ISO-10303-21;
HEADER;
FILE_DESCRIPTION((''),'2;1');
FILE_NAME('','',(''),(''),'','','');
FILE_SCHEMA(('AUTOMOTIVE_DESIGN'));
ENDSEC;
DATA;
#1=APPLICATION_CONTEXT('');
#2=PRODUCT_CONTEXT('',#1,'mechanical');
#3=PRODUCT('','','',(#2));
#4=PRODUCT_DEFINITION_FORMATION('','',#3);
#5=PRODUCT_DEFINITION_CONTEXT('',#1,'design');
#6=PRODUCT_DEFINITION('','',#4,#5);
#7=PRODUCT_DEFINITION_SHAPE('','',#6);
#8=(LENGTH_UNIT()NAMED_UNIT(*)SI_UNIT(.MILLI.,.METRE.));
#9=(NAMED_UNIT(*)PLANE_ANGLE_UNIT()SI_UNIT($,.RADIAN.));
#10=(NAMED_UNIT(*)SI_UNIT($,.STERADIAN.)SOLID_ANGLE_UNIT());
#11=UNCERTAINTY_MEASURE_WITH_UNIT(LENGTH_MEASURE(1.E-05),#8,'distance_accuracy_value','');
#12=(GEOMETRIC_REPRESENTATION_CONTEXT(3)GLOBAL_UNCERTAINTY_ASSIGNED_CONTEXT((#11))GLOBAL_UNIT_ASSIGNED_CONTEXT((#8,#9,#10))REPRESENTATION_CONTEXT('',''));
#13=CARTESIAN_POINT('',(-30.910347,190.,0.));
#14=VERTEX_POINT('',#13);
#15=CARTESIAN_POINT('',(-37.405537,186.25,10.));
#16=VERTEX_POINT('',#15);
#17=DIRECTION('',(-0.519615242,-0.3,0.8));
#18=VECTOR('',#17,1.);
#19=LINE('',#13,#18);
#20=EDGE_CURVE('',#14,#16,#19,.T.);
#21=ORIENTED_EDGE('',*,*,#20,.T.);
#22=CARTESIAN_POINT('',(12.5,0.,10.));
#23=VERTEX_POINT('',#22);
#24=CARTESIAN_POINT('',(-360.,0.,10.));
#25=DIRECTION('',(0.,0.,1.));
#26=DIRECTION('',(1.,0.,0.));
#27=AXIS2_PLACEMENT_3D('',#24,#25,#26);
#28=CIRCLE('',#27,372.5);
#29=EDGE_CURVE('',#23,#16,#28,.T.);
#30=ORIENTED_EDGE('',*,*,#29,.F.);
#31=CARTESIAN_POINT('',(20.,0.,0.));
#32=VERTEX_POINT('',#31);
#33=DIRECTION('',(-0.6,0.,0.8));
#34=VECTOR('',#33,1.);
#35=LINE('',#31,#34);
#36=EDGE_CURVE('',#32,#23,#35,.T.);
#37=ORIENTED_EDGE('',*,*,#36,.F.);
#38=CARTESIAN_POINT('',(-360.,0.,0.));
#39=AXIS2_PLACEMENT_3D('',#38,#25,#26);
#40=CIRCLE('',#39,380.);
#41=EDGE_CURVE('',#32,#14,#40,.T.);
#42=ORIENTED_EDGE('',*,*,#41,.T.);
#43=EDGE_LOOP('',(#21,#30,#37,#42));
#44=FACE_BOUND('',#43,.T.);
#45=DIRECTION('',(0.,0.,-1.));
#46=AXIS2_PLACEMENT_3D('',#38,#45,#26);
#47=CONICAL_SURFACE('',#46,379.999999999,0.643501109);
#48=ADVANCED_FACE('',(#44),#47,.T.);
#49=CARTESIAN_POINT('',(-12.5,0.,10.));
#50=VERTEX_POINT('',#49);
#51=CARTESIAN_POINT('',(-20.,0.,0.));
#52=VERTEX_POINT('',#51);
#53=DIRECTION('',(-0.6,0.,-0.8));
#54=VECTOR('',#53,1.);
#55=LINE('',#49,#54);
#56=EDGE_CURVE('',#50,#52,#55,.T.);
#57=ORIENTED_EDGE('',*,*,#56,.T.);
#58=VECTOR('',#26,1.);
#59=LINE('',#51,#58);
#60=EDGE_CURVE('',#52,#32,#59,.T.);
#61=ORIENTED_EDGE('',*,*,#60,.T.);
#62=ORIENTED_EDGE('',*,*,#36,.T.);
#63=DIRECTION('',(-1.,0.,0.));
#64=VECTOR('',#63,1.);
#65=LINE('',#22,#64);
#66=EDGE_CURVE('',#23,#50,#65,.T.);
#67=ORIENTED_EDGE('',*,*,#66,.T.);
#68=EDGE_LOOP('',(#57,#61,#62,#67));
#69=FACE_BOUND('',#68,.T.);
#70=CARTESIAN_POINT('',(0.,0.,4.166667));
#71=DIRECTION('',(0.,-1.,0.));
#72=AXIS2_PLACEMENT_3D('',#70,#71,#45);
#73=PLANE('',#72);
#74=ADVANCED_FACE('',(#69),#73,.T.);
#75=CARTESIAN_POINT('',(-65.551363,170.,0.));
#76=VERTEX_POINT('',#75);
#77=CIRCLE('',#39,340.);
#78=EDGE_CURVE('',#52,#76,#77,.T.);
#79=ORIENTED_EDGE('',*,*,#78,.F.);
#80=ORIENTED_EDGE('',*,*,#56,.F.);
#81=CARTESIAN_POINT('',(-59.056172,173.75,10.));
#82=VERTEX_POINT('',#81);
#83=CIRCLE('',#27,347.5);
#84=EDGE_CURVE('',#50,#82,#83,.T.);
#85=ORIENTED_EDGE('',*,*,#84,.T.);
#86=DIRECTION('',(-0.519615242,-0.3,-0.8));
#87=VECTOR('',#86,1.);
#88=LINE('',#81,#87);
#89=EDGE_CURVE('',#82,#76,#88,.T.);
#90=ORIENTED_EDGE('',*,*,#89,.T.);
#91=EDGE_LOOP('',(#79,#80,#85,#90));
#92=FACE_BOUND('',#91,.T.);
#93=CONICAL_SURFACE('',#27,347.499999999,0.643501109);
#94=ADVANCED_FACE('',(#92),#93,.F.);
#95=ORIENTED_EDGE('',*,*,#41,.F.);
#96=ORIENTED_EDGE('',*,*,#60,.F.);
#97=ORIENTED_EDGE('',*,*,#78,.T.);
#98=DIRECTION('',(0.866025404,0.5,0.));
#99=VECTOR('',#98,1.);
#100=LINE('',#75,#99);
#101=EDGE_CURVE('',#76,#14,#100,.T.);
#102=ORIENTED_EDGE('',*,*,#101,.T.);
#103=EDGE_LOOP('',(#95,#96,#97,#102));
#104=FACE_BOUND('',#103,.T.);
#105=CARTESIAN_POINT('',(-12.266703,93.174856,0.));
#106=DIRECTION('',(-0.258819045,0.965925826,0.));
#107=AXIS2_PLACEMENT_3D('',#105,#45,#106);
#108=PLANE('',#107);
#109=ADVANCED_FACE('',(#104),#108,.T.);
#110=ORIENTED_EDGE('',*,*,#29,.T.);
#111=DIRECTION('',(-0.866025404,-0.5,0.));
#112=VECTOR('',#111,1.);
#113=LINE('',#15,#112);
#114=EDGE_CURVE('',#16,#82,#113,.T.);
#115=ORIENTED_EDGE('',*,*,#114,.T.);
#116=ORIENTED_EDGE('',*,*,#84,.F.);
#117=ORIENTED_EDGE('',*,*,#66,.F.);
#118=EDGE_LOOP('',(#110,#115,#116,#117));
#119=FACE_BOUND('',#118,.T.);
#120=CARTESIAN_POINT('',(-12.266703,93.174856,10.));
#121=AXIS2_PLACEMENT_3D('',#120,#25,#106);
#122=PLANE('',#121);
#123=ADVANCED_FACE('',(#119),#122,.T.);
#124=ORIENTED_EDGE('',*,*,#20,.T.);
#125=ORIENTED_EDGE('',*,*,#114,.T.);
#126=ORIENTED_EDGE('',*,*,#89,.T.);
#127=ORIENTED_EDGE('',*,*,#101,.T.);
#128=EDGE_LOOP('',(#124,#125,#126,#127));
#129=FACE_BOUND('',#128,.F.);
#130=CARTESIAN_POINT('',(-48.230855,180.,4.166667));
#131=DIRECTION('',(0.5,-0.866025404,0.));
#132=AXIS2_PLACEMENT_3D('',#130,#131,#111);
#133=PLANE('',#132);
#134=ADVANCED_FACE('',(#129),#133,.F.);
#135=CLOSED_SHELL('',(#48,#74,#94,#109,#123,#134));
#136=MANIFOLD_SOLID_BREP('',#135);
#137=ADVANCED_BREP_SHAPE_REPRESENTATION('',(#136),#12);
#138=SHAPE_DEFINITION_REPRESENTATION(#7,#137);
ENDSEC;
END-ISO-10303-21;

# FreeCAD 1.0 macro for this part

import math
import FreeCAD as App
import Part
import Sketcher
from FreeCAD import Vector
Q = App.Units.Quantity

doc = App.newDocument("Part")
params = doc.addObject("Spreadsheet::Sheet", "Params")
for row, (alias, value) in enumerate([
    ("sketch1_width", "40 mm"),
    ("sketch1_width2", "25 mm"),
    ("sketch2_radius", "360 mm"),
], start=1):
    params.set(f"A{row}", alias)
    params.set(f"B{row}", "=" + value)
    params.setAlias(f"B{row}", alias)

body = doc.addObject("PartDesign::Body", "Body")

# Sketch on XZ plane
sketch1 = body.newObject("Sketcher::SketchObject", "Sketch")
sketch1.AttachmentSupport = (doc.getObject("XZ_Plane"), [""])
sketch1.MapMode = "FlatFace"
sketch1.addGeometry([
    Part.LineSegment(Vector(-12, 10, 0), Vector(-20, 0, 0)),
    Part.LineSegment(Vector(-20, 0, 0), Vector(20, 0, 0)),
    Part.LineSegment(Vector(20, 0, 0), Vector(12, 10, 0)),
    Part.LineSegment(Vector(12, 10, 0), Vector(-12, 10, 0)),
], False)
sketch1.addConstraint([
    Sketcher.Constraint("Coincident", 0, 2, 1, 1),
    Sketcher.Constraint("Coincident", 1, 2, 2, 1),
    Sketcher.Constraint("Coincident", 2, 2, 3, 1),
    Sketcher.Constraint("Coincident", 3, 2, 0, 1),
    Sketcher.Constraint("Horizontal", 1),
    Sketcher.Constraint("Horizontal", 3),
    Sketcher.Constraint("Symmetric", 0, 2, 1, 2, -1, 1),
    Sketcher.Constraint("Equal", 0, 2),
    Sketcher.Constraint("DistanceX", 1, 1, 1, 2, Q("40 mm")),
    Sketcher.Constraint("DistanceX", 3, 2, 3, 1, Q("25 mm")),
    Sketcher.Constraint("DistanceY", -1, 1, 2, 2, Q("10 mm")),
])
sketch1.setExpression("Constraints[8]", "Params.sketch1_width")
sketch1.setExpression("Constraints[9]", "Params.sketch1_width2")

# Sketch on XY plane
sketch2 = body.newObject("Sketcher::SketchObject", "Sketch001")
sketch2.AttachmentSupport = (doc.getObject("XY_Plane"), [""])
sketch2.MapMode = "FlatFace"
sketch2.addGeometry(Part.ArcOfCircle(Part.Circle(Vector(-360, 0, 0), Vector(0, 0, 1), 360), math.radians(0), math.radians(30)), False)
sketch2.addConstraint([
    Sketcher.Constraint("Coincident", 0, 1, -1, 1),
    Sketcher.Constraint("PointOnObject", 0, 3, -1),
    Sketcher.Constraint("Radius", 0, Q("360 mm")),
    Sketcher.Constraint("DistanceY", -1, 1, 0, 2, Q("180 mm")),
])
sketch2.setExpression("Constraints[2]", "Params.sketch2_radius")
doc.recompute()

additivepipe = body.newObject("PartDesign::AdditivePipe", "AdditivePipe")
additivepipe.Profile = sketch1
additivepipe.Spine = (sketch2, ["Edge1"])

doc.recompute()
